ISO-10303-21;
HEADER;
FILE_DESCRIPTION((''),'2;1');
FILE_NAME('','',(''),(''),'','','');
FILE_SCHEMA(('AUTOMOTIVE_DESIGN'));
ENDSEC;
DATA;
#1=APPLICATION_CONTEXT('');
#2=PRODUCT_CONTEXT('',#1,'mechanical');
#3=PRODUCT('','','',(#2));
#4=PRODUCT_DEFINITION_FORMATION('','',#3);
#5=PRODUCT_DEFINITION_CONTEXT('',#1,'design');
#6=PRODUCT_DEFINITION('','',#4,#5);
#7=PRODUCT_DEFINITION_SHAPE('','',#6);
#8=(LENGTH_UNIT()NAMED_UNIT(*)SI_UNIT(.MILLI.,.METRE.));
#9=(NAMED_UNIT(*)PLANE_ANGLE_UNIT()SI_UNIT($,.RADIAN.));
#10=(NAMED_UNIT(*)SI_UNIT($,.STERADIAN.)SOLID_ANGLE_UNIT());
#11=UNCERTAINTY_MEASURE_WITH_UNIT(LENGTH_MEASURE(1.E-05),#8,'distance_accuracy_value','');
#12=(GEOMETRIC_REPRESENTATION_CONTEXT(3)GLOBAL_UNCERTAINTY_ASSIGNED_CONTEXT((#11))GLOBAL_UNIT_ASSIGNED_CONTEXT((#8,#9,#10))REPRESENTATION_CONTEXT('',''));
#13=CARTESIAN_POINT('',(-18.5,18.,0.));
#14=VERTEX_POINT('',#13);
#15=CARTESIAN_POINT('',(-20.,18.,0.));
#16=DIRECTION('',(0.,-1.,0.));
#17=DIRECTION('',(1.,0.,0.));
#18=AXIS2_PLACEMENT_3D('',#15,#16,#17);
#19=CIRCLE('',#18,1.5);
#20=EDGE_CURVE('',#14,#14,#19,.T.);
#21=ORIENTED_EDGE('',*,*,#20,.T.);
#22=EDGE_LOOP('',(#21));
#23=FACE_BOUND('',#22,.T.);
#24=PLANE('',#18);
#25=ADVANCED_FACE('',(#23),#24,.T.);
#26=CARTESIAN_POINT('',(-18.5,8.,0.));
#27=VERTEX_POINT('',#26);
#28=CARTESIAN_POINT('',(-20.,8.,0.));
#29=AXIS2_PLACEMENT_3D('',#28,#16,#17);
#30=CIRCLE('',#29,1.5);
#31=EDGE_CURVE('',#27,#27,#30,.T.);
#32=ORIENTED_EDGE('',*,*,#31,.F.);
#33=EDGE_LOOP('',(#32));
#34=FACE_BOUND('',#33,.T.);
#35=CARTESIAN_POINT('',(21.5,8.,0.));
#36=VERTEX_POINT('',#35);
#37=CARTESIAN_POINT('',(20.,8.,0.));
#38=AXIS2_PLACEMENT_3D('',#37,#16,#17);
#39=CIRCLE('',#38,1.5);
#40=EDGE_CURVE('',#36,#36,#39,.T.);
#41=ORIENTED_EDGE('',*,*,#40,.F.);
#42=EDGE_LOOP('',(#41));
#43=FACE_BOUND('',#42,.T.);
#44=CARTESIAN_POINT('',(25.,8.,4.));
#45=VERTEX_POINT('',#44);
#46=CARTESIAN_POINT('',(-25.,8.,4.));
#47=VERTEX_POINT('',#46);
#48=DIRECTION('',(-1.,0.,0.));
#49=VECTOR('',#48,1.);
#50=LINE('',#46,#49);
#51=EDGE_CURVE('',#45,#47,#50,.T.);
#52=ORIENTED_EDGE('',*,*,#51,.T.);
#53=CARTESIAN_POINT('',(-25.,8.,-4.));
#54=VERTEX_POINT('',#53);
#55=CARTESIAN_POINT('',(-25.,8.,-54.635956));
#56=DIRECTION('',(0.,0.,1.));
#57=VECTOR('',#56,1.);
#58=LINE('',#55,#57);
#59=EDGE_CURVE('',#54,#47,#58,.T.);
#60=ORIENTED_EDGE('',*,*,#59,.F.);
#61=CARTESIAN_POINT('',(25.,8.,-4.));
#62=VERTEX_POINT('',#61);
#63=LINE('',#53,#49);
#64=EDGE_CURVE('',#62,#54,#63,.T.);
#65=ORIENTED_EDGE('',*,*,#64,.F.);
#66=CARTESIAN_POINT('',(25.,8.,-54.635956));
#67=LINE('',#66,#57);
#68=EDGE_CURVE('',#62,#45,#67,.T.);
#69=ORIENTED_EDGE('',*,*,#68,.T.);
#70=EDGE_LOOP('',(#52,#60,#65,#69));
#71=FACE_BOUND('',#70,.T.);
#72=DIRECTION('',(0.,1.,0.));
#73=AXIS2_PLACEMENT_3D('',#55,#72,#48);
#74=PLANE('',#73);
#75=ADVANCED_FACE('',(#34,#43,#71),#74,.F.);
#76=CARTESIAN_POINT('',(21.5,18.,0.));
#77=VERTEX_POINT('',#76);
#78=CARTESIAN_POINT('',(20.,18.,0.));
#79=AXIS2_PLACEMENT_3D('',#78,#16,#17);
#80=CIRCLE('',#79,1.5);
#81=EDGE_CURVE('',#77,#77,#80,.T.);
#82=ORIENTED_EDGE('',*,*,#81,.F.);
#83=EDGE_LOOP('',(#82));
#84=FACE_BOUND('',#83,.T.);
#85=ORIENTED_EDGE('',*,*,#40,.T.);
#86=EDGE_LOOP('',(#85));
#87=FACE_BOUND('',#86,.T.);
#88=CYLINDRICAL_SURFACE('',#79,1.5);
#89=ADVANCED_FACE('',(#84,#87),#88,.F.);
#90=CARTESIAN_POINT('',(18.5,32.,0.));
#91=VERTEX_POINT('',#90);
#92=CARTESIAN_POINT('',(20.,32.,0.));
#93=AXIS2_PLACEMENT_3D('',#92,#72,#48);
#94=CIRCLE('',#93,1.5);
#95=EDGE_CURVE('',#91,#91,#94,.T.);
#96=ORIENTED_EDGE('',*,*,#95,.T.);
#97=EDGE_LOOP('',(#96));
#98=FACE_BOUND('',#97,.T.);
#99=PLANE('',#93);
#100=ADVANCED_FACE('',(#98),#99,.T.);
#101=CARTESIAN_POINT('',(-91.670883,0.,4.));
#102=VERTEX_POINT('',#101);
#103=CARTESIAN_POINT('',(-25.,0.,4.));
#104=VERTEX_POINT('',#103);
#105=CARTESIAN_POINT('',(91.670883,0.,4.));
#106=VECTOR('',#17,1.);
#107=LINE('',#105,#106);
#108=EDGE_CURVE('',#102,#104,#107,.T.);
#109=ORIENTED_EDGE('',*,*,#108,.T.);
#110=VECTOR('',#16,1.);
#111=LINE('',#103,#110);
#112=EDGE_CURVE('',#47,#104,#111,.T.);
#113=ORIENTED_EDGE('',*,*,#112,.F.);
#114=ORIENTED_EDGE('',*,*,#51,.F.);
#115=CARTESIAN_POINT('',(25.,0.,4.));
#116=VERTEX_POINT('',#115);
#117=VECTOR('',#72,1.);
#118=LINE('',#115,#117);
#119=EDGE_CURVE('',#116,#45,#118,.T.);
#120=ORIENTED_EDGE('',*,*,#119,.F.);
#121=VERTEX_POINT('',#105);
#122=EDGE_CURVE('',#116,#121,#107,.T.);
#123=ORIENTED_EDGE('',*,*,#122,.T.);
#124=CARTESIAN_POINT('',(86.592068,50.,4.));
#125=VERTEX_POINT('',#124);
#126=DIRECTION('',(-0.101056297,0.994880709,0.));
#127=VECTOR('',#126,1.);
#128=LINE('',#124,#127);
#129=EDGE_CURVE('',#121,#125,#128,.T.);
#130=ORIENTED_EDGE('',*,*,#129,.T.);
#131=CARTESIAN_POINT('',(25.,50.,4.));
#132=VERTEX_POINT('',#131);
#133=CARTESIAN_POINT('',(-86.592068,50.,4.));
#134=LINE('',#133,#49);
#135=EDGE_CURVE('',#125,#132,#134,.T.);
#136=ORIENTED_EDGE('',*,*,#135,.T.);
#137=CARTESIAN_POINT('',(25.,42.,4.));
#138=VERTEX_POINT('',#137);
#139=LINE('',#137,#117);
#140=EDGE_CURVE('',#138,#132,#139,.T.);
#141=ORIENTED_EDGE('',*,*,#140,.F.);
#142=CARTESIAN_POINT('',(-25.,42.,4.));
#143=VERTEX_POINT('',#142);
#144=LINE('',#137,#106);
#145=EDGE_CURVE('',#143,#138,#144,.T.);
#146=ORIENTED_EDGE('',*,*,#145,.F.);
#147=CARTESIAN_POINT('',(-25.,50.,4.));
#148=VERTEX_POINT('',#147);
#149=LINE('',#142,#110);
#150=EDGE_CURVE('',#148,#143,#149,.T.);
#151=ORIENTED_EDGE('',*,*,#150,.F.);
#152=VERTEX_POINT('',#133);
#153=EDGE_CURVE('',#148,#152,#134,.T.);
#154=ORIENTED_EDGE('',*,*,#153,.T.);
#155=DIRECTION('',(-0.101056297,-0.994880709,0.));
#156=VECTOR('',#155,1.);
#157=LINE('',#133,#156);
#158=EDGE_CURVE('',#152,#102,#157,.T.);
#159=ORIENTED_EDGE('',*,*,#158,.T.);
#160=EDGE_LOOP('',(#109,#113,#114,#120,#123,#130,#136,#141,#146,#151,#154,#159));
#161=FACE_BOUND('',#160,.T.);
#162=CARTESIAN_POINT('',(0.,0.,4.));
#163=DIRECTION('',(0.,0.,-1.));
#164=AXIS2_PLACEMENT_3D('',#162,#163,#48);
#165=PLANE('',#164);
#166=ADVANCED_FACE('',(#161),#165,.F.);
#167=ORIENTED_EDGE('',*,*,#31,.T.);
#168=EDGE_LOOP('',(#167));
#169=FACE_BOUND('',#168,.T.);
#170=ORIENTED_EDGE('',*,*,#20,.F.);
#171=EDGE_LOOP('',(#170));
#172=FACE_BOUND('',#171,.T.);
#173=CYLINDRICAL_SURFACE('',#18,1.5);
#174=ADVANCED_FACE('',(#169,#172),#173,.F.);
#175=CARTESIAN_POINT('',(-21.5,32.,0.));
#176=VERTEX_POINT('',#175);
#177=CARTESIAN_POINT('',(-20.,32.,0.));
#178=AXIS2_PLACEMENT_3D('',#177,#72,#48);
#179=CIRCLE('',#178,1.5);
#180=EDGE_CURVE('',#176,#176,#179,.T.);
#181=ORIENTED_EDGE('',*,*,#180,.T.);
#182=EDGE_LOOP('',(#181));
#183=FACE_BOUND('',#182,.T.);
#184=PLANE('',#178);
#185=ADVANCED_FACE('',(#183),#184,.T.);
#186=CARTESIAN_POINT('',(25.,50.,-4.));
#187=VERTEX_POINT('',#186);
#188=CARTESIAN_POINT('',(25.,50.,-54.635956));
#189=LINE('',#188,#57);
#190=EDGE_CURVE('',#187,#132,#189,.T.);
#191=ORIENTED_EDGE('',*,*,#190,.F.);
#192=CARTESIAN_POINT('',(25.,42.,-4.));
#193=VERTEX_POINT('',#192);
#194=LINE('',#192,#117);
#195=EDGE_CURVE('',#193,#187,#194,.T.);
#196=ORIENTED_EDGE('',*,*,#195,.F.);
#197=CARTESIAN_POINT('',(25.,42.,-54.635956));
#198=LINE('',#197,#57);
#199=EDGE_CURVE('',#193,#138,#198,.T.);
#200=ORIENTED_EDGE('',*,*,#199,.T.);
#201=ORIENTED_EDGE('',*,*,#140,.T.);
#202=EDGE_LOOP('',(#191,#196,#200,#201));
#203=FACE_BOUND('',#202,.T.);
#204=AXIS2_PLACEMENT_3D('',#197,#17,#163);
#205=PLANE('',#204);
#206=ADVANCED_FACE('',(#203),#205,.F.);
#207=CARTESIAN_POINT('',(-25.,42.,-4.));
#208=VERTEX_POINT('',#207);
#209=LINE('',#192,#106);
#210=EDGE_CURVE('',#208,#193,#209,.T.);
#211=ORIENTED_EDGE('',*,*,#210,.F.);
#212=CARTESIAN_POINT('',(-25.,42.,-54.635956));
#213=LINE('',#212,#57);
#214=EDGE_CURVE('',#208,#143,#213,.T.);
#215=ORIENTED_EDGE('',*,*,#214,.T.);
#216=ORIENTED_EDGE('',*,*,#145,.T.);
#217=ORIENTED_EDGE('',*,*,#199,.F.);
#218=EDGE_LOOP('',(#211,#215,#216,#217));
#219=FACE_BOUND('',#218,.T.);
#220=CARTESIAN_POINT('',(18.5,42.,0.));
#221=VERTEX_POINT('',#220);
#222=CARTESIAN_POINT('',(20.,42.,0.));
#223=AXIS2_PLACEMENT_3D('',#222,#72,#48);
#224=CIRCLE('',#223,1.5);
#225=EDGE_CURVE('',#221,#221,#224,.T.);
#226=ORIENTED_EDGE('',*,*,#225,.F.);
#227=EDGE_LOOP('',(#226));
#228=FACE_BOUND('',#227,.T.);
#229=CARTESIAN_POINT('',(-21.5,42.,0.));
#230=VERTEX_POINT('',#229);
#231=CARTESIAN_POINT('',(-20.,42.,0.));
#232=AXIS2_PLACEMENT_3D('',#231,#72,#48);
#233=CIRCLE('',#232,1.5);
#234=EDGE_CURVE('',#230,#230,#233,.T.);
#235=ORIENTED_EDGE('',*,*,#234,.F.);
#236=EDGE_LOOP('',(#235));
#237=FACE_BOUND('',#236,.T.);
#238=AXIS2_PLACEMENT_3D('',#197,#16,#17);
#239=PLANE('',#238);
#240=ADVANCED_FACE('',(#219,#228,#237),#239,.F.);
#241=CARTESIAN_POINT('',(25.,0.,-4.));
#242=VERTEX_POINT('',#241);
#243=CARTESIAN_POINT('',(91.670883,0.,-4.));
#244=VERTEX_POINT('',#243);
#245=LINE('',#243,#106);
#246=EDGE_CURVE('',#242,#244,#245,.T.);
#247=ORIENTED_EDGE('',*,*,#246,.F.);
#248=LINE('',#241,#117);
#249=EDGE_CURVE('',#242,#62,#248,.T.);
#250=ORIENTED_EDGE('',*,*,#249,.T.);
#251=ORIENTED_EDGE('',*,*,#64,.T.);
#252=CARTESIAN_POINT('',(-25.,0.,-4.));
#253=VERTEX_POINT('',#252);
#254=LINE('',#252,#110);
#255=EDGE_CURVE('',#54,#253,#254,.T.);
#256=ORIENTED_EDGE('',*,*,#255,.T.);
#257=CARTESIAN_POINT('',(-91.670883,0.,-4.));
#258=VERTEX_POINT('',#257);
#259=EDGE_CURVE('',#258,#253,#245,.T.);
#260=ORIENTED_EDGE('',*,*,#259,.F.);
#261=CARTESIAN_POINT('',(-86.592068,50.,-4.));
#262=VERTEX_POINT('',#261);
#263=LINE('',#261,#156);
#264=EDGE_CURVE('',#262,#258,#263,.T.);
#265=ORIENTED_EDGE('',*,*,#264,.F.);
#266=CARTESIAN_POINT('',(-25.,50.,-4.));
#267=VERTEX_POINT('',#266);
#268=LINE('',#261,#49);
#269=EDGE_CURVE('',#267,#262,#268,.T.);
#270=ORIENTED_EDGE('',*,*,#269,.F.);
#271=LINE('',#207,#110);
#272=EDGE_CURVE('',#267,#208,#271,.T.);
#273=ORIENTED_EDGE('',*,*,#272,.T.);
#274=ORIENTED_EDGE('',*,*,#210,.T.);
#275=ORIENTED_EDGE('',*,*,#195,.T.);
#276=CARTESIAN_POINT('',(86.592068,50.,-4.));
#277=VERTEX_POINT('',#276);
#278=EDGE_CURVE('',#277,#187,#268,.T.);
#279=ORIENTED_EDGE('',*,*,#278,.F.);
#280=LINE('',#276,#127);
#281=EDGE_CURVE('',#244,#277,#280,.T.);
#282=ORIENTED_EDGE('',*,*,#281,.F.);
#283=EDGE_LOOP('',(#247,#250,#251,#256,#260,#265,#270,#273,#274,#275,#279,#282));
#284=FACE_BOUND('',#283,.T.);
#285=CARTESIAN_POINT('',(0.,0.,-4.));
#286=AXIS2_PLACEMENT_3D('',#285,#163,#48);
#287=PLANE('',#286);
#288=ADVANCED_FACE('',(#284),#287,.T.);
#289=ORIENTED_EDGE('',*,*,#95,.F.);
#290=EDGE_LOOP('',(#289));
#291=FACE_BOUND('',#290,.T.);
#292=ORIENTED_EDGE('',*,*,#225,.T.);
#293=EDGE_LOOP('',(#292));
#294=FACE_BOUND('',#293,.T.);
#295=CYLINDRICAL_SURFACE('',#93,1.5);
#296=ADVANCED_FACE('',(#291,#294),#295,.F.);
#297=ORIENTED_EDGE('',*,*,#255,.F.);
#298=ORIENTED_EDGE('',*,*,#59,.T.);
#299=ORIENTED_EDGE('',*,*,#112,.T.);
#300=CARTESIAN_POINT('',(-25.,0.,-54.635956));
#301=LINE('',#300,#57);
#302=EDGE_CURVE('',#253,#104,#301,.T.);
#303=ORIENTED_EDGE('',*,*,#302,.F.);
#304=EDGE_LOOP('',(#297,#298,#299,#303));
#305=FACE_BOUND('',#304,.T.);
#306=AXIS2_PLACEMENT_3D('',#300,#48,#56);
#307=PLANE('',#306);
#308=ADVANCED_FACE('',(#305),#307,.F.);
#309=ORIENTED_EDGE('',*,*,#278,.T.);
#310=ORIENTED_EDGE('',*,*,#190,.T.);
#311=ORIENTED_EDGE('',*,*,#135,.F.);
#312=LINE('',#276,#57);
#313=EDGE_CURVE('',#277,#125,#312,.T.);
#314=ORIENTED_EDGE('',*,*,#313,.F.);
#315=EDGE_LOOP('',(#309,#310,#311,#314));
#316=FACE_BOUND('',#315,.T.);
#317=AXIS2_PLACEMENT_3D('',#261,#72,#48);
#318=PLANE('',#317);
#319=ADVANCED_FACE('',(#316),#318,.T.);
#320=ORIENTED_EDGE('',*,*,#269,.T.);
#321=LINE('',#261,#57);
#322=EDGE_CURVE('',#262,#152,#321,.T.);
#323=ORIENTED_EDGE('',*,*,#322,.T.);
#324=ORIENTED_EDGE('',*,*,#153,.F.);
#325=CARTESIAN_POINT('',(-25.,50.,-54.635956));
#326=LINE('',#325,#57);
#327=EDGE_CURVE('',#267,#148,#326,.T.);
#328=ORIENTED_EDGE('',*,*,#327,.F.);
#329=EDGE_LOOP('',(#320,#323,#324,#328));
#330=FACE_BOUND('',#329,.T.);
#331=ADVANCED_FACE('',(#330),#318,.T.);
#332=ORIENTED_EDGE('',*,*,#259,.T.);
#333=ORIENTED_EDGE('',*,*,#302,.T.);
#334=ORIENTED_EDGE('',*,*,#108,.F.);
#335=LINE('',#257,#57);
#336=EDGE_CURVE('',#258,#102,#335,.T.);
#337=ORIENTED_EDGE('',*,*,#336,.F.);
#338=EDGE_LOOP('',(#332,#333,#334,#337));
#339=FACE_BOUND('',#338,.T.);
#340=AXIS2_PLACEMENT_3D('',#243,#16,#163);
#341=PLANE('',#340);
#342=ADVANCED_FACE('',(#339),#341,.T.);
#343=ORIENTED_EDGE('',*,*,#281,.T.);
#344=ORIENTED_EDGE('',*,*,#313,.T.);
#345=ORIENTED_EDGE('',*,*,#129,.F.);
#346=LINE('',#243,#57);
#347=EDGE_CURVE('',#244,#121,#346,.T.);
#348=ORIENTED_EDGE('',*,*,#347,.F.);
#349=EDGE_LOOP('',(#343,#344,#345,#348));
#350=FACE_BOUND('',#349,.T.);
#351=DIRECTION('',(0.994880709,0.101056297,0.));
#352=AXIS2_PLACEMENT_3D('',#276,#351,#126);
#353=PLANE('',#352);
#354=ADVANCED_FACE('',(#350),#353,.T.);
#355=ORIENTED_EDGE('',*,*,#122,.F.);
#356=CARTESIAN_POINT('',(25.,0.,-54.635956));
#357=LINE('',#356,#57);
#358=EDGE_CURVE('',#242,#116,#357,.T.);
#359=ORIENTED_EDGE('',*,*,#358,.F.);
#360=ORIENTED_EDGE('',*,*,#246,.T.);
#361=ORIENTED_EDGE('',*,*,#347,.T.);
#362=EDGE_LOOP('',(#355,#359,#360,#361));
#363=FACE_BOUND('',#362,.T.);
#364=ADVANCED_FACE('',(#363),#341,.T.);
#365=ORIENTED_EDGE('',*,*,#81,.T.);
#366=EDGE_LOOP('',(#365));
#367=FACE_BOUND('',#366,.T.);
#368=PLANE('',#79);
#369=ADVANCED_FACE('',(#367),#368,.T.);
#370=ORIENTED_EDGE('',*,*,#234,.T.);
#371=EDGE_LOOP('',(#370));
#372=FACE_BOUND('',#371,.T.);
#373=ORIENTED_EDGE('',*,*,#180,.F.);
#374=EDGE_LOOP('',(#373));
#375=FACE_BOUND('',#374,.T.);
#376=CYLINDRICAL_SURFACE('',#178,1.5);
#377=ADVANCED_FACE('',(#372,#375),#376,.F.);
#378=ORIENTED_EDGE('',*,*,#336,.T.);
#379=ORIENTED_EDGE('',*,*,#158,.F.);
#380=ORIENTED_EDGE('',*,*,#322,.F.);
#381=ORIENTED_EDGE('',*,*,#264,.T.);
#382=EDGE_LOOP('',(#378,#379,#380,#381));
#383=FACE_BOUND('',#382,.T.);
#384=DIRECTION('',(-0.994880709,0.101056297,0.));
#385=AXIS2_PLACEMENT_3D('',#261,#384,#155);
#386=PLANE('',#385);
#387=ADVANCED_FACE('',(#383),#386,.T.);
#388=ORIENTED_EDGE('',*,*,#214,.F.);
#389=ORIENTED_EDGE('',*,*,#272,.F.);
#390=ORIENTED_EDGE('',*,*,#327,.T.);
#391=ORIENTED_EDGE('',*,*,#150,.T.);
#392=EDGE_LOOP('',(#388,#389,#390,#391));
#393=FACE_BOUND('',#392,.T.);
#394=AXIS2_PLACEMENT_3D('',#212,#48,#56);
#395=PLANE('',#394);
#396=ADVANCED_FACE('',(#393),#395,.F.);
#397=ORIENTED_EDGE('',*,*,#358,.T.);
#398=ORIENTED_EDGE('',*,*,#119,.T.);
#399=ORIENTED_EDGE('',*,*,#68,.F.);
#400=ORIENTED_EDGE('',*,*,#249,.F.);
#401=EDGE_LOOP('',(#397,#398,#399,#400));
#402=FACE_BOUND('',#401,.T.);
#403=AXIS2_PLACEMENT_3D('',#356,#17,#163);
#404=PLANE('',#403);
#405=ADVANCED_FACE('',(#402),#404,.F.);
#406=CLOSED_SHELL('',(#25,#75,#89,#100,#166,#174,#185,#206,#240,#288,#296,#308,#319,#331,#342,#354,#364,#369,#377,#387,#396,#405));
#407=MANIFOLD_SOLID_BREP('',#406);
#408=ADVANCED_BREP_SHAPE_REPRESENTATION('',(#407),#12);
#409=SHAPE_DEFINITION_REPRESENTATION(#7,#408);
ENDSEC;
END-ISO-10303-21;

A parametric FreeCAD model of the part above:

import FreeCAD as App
import Part
import Sketcher

V = App.Vector
Q = App.Units.Quantity

doc = App.newDocument("Part")
body = doc.addObject("PartDesign::Body", "Body")

sketch1 = doc.addObject("Sketcher::SketchObject", "Sketch")
body.addObject(sketch1)
sketch1.AttachmentSupport = (doc.XY_Plane, [""])
sketch1.MapMode = "FlatFace"
sketch1.addGeometry([
    Part.LineSegment(V(87, 50, 0), V(-87, 50, 0)),
    Part.LineSegment(V(-87, 50, 0), V(-92, 0, 0)),
    Part.LineSegment(V(-92, 0, 0), V(92, 0, 0)),
    Part.LineSegment(V(92, 0, 0), V(87, 50, 0)),
], False)
sketch1.addConstraint([
    Sketcher.Constraint("Coincident", 0, 2, 1, 1),
    Sketcher.Constraint("Coincident", 1, 2, 2, 1),
    Sketcher.Constraint("Coincident", 2, 2, 3, 1),
    Sketcher.Constraint("Coincident", 3, 2, 0, 1),
    Sketcher.Constraint("Horizontal", 0),
    Sketcher.Constraint("Horizontal", 2),
    Sketcher.Constraint("Symmetric", 1, 2, 2, 2, -1, 1),
    Sketcher.Constraint("Equal", 1, 3),
    Sketcher.Constraint("DistanceY", -1, 1, 0, 2, Q("50 mm")),
    Sketcher.Constraint("Angle", 1, Q("-95.8 deg")),
    Sketcher.Constraint("DistanceX", 0, 2, 0, 1, Q("173.184136 mm")),
])
pad1 = doc.addObject("PartDesign::Pad", "Pad")
body.addObject(pad1)
pad1.Profile = sketch1
pad1.Type = "TwoLengths"
pad1.Length = 4
pad1.Length2 = 4

sketch2 = doc.addObject("Sketcher::SketchObject", "Sketch001")
body.addObject(sketch2)
sketch2.AttachmentSupport = (doc.XY_Plane, [""])
sketch2.MapMode = "FlatFace"
sketch2.AttachmentOffset = App.Placement(V(0, 0, 4), App.Rotation())
sketch2.addGeometry([
    Part.LineSegment(V(-25, 8, 0), V(-25, 0, 0)),
    Part.LineSegment(V(-25, 0, 0), V(25, 0, 0)),
    Part.LineSegment(V(25, 0, 0), V(25, 8, 0)),
    Part.LineSegment(V(25, 8, 0), V(-25, 8, 0)),
    Part.LineSegment(V(-25, 42, 0), V(25, 42, 0)),
    Part.LineSegment(V(25, 42, 0), V(25, 50, 0)),
    Part.LineSegment(V(25, 50, 0), V(-25, 50, 0)),
    Part.LineSegment(V(-25, 50, 0), V(-25, 42, 0)),
], False)
sketch2.addConstraint([
    Sketcher.Constraint("Coincident", 0, 2, 1, 1),
    Sketcher.Constraint("Coincident", 1, 2, 2, 1),
    Sketcher.Constraint("Coincident", 2, 2, 3, 1),
    Sketcher.Constraint("Coincident", 3, 2, 0, 1),
    Sketcher.Constraint("Coincident", 4, 2, 5, 1),
    Sketcher.Constraint("Coincident", 5, 2, 6, 1),
    Sketcher.Constraint("Coincident", 6, 2, 7, 1),
    Sketcher.Constraint("Coincident", 7, 2, 4, 1),
    Sketcher.Constraint("Vertical", 0),
    Sketcher.Constraint("Horizontal", 1),
    Sketcher.Constraint("Vertical", 2),
    Sketcher.Constraint("Horizontal", 3),
    Sketcher.Constraint("Horizontal", 4),
    Sketcher.Constraint("Vertical", 5),
    Sketcher.Constraint("Horizontal", 6),
    Sketcher.Constraint("Vertical", 7),
    Sketcher.Constraint("Symmetric", 0, 2, 1, 2, -1, 1),
    Sketcher.Constraint("Vertical", 2, 2, 4, 2),
    Sketcher.Constraint("Vertical", 3, 2, 6, 2),
    Sketcher.Constraint("Equal", 2, 5),
    Sketcher.Constraint("DistanceX", 1, 1, 1, 2, Q("50 mm")),
    Sketcher.Constraint("DistanceY", 0, 2, 0, 1, Q("8 mm")),
    Sketcher.Constraint("DistanceY", -1, 1, 4, 2, Q("42 mm")),
])
pocket1 = doc.addObject("PartDesign::Pocket", "Pocket")
body.addObject(pocket1)
pocket1.Profile = sketch2
pocket1.Length = 8

sketch3 = doc.addObject("Sketcher::SketchObject", "Sketch002")
body.addObject(sketch3)
sketch3.AttachmentSupport = (doc.XZ_Plane, [""])
sketch3.MapMode = "FlatFace"
sketch3.AttachmentOffset = App.Placement(V(0, 0, -42), App.Rotation())
sketch3.addGeometry([
    Part.Circle(V(20, 0, 0), V(0, 0, 1), 1.5),
    Part.Circle(V(-20, 0, 0), V(0, 0, 1), 1.5),
], False)
sketch3.addConstraint([
    Sketcher.Constraint("Equal", 0, 1),
    Sketcher.Constraint("Symmetric", 0, 3, 1, 3, -1, 1),
    Sketcher.Constraint("PointOnObject", 0, 3, -1),
    Sketcher.Constraint("Diameter", 0, Q("3 mm")),
    Sketcher.Constraint("DistanceX", -1, 1, 0, 3, Q("20 mm")),
])
pocket2 = doc.addObject("PartDesign::Pocket", "Pocket001")
body.addObject(pocket2)
pocket2.Profile = sketch3
pocket2.Length = 10
pocket2.Reversed = True

sketch4 = doc.addObject("Sketcher::SketchObject", "Sketch003")
body.addObject(sketch4)
sketch4.AttachmentSupport = (doc.XZ_Plane, [""])
sketch4.MapMode = "FlatFace"
sketch4.AttachmentOffset = App.Placement(V(0, 0, -18), App.Rotation())
sketch4.addGeometry([
    Part.Circle(V(20, 0, 0), V(0, 0, 1), 1.5),
    Part.Circle(V(-20, 0, 0), V(0, 0, 1), 1.5),
], False)
sketch4.addConstraint([
    Sketcher.Constraint("Equal", 0, 1),
    Sketcher.Constraint("Symmetric", 0, 3, 1, 3, -1, 1),
    Sketcher.Constraint("PointOnObject", 0, 3, -1),
    Sketcher.Constraint("Diameter", 0, Q("3 mm")),
    Sketcher.Constraint("DistanceX", -1, 1, 0, 3, Q("20 mm")),
])
pocket3 = doc.addObject("PartDesign::Pocket", "Pocket002")
body.addObject(pocket3)
pocket3.Profile = sketch4
pocket3.Length = 10
pocket3.Reversed = True

doc.recompute()
